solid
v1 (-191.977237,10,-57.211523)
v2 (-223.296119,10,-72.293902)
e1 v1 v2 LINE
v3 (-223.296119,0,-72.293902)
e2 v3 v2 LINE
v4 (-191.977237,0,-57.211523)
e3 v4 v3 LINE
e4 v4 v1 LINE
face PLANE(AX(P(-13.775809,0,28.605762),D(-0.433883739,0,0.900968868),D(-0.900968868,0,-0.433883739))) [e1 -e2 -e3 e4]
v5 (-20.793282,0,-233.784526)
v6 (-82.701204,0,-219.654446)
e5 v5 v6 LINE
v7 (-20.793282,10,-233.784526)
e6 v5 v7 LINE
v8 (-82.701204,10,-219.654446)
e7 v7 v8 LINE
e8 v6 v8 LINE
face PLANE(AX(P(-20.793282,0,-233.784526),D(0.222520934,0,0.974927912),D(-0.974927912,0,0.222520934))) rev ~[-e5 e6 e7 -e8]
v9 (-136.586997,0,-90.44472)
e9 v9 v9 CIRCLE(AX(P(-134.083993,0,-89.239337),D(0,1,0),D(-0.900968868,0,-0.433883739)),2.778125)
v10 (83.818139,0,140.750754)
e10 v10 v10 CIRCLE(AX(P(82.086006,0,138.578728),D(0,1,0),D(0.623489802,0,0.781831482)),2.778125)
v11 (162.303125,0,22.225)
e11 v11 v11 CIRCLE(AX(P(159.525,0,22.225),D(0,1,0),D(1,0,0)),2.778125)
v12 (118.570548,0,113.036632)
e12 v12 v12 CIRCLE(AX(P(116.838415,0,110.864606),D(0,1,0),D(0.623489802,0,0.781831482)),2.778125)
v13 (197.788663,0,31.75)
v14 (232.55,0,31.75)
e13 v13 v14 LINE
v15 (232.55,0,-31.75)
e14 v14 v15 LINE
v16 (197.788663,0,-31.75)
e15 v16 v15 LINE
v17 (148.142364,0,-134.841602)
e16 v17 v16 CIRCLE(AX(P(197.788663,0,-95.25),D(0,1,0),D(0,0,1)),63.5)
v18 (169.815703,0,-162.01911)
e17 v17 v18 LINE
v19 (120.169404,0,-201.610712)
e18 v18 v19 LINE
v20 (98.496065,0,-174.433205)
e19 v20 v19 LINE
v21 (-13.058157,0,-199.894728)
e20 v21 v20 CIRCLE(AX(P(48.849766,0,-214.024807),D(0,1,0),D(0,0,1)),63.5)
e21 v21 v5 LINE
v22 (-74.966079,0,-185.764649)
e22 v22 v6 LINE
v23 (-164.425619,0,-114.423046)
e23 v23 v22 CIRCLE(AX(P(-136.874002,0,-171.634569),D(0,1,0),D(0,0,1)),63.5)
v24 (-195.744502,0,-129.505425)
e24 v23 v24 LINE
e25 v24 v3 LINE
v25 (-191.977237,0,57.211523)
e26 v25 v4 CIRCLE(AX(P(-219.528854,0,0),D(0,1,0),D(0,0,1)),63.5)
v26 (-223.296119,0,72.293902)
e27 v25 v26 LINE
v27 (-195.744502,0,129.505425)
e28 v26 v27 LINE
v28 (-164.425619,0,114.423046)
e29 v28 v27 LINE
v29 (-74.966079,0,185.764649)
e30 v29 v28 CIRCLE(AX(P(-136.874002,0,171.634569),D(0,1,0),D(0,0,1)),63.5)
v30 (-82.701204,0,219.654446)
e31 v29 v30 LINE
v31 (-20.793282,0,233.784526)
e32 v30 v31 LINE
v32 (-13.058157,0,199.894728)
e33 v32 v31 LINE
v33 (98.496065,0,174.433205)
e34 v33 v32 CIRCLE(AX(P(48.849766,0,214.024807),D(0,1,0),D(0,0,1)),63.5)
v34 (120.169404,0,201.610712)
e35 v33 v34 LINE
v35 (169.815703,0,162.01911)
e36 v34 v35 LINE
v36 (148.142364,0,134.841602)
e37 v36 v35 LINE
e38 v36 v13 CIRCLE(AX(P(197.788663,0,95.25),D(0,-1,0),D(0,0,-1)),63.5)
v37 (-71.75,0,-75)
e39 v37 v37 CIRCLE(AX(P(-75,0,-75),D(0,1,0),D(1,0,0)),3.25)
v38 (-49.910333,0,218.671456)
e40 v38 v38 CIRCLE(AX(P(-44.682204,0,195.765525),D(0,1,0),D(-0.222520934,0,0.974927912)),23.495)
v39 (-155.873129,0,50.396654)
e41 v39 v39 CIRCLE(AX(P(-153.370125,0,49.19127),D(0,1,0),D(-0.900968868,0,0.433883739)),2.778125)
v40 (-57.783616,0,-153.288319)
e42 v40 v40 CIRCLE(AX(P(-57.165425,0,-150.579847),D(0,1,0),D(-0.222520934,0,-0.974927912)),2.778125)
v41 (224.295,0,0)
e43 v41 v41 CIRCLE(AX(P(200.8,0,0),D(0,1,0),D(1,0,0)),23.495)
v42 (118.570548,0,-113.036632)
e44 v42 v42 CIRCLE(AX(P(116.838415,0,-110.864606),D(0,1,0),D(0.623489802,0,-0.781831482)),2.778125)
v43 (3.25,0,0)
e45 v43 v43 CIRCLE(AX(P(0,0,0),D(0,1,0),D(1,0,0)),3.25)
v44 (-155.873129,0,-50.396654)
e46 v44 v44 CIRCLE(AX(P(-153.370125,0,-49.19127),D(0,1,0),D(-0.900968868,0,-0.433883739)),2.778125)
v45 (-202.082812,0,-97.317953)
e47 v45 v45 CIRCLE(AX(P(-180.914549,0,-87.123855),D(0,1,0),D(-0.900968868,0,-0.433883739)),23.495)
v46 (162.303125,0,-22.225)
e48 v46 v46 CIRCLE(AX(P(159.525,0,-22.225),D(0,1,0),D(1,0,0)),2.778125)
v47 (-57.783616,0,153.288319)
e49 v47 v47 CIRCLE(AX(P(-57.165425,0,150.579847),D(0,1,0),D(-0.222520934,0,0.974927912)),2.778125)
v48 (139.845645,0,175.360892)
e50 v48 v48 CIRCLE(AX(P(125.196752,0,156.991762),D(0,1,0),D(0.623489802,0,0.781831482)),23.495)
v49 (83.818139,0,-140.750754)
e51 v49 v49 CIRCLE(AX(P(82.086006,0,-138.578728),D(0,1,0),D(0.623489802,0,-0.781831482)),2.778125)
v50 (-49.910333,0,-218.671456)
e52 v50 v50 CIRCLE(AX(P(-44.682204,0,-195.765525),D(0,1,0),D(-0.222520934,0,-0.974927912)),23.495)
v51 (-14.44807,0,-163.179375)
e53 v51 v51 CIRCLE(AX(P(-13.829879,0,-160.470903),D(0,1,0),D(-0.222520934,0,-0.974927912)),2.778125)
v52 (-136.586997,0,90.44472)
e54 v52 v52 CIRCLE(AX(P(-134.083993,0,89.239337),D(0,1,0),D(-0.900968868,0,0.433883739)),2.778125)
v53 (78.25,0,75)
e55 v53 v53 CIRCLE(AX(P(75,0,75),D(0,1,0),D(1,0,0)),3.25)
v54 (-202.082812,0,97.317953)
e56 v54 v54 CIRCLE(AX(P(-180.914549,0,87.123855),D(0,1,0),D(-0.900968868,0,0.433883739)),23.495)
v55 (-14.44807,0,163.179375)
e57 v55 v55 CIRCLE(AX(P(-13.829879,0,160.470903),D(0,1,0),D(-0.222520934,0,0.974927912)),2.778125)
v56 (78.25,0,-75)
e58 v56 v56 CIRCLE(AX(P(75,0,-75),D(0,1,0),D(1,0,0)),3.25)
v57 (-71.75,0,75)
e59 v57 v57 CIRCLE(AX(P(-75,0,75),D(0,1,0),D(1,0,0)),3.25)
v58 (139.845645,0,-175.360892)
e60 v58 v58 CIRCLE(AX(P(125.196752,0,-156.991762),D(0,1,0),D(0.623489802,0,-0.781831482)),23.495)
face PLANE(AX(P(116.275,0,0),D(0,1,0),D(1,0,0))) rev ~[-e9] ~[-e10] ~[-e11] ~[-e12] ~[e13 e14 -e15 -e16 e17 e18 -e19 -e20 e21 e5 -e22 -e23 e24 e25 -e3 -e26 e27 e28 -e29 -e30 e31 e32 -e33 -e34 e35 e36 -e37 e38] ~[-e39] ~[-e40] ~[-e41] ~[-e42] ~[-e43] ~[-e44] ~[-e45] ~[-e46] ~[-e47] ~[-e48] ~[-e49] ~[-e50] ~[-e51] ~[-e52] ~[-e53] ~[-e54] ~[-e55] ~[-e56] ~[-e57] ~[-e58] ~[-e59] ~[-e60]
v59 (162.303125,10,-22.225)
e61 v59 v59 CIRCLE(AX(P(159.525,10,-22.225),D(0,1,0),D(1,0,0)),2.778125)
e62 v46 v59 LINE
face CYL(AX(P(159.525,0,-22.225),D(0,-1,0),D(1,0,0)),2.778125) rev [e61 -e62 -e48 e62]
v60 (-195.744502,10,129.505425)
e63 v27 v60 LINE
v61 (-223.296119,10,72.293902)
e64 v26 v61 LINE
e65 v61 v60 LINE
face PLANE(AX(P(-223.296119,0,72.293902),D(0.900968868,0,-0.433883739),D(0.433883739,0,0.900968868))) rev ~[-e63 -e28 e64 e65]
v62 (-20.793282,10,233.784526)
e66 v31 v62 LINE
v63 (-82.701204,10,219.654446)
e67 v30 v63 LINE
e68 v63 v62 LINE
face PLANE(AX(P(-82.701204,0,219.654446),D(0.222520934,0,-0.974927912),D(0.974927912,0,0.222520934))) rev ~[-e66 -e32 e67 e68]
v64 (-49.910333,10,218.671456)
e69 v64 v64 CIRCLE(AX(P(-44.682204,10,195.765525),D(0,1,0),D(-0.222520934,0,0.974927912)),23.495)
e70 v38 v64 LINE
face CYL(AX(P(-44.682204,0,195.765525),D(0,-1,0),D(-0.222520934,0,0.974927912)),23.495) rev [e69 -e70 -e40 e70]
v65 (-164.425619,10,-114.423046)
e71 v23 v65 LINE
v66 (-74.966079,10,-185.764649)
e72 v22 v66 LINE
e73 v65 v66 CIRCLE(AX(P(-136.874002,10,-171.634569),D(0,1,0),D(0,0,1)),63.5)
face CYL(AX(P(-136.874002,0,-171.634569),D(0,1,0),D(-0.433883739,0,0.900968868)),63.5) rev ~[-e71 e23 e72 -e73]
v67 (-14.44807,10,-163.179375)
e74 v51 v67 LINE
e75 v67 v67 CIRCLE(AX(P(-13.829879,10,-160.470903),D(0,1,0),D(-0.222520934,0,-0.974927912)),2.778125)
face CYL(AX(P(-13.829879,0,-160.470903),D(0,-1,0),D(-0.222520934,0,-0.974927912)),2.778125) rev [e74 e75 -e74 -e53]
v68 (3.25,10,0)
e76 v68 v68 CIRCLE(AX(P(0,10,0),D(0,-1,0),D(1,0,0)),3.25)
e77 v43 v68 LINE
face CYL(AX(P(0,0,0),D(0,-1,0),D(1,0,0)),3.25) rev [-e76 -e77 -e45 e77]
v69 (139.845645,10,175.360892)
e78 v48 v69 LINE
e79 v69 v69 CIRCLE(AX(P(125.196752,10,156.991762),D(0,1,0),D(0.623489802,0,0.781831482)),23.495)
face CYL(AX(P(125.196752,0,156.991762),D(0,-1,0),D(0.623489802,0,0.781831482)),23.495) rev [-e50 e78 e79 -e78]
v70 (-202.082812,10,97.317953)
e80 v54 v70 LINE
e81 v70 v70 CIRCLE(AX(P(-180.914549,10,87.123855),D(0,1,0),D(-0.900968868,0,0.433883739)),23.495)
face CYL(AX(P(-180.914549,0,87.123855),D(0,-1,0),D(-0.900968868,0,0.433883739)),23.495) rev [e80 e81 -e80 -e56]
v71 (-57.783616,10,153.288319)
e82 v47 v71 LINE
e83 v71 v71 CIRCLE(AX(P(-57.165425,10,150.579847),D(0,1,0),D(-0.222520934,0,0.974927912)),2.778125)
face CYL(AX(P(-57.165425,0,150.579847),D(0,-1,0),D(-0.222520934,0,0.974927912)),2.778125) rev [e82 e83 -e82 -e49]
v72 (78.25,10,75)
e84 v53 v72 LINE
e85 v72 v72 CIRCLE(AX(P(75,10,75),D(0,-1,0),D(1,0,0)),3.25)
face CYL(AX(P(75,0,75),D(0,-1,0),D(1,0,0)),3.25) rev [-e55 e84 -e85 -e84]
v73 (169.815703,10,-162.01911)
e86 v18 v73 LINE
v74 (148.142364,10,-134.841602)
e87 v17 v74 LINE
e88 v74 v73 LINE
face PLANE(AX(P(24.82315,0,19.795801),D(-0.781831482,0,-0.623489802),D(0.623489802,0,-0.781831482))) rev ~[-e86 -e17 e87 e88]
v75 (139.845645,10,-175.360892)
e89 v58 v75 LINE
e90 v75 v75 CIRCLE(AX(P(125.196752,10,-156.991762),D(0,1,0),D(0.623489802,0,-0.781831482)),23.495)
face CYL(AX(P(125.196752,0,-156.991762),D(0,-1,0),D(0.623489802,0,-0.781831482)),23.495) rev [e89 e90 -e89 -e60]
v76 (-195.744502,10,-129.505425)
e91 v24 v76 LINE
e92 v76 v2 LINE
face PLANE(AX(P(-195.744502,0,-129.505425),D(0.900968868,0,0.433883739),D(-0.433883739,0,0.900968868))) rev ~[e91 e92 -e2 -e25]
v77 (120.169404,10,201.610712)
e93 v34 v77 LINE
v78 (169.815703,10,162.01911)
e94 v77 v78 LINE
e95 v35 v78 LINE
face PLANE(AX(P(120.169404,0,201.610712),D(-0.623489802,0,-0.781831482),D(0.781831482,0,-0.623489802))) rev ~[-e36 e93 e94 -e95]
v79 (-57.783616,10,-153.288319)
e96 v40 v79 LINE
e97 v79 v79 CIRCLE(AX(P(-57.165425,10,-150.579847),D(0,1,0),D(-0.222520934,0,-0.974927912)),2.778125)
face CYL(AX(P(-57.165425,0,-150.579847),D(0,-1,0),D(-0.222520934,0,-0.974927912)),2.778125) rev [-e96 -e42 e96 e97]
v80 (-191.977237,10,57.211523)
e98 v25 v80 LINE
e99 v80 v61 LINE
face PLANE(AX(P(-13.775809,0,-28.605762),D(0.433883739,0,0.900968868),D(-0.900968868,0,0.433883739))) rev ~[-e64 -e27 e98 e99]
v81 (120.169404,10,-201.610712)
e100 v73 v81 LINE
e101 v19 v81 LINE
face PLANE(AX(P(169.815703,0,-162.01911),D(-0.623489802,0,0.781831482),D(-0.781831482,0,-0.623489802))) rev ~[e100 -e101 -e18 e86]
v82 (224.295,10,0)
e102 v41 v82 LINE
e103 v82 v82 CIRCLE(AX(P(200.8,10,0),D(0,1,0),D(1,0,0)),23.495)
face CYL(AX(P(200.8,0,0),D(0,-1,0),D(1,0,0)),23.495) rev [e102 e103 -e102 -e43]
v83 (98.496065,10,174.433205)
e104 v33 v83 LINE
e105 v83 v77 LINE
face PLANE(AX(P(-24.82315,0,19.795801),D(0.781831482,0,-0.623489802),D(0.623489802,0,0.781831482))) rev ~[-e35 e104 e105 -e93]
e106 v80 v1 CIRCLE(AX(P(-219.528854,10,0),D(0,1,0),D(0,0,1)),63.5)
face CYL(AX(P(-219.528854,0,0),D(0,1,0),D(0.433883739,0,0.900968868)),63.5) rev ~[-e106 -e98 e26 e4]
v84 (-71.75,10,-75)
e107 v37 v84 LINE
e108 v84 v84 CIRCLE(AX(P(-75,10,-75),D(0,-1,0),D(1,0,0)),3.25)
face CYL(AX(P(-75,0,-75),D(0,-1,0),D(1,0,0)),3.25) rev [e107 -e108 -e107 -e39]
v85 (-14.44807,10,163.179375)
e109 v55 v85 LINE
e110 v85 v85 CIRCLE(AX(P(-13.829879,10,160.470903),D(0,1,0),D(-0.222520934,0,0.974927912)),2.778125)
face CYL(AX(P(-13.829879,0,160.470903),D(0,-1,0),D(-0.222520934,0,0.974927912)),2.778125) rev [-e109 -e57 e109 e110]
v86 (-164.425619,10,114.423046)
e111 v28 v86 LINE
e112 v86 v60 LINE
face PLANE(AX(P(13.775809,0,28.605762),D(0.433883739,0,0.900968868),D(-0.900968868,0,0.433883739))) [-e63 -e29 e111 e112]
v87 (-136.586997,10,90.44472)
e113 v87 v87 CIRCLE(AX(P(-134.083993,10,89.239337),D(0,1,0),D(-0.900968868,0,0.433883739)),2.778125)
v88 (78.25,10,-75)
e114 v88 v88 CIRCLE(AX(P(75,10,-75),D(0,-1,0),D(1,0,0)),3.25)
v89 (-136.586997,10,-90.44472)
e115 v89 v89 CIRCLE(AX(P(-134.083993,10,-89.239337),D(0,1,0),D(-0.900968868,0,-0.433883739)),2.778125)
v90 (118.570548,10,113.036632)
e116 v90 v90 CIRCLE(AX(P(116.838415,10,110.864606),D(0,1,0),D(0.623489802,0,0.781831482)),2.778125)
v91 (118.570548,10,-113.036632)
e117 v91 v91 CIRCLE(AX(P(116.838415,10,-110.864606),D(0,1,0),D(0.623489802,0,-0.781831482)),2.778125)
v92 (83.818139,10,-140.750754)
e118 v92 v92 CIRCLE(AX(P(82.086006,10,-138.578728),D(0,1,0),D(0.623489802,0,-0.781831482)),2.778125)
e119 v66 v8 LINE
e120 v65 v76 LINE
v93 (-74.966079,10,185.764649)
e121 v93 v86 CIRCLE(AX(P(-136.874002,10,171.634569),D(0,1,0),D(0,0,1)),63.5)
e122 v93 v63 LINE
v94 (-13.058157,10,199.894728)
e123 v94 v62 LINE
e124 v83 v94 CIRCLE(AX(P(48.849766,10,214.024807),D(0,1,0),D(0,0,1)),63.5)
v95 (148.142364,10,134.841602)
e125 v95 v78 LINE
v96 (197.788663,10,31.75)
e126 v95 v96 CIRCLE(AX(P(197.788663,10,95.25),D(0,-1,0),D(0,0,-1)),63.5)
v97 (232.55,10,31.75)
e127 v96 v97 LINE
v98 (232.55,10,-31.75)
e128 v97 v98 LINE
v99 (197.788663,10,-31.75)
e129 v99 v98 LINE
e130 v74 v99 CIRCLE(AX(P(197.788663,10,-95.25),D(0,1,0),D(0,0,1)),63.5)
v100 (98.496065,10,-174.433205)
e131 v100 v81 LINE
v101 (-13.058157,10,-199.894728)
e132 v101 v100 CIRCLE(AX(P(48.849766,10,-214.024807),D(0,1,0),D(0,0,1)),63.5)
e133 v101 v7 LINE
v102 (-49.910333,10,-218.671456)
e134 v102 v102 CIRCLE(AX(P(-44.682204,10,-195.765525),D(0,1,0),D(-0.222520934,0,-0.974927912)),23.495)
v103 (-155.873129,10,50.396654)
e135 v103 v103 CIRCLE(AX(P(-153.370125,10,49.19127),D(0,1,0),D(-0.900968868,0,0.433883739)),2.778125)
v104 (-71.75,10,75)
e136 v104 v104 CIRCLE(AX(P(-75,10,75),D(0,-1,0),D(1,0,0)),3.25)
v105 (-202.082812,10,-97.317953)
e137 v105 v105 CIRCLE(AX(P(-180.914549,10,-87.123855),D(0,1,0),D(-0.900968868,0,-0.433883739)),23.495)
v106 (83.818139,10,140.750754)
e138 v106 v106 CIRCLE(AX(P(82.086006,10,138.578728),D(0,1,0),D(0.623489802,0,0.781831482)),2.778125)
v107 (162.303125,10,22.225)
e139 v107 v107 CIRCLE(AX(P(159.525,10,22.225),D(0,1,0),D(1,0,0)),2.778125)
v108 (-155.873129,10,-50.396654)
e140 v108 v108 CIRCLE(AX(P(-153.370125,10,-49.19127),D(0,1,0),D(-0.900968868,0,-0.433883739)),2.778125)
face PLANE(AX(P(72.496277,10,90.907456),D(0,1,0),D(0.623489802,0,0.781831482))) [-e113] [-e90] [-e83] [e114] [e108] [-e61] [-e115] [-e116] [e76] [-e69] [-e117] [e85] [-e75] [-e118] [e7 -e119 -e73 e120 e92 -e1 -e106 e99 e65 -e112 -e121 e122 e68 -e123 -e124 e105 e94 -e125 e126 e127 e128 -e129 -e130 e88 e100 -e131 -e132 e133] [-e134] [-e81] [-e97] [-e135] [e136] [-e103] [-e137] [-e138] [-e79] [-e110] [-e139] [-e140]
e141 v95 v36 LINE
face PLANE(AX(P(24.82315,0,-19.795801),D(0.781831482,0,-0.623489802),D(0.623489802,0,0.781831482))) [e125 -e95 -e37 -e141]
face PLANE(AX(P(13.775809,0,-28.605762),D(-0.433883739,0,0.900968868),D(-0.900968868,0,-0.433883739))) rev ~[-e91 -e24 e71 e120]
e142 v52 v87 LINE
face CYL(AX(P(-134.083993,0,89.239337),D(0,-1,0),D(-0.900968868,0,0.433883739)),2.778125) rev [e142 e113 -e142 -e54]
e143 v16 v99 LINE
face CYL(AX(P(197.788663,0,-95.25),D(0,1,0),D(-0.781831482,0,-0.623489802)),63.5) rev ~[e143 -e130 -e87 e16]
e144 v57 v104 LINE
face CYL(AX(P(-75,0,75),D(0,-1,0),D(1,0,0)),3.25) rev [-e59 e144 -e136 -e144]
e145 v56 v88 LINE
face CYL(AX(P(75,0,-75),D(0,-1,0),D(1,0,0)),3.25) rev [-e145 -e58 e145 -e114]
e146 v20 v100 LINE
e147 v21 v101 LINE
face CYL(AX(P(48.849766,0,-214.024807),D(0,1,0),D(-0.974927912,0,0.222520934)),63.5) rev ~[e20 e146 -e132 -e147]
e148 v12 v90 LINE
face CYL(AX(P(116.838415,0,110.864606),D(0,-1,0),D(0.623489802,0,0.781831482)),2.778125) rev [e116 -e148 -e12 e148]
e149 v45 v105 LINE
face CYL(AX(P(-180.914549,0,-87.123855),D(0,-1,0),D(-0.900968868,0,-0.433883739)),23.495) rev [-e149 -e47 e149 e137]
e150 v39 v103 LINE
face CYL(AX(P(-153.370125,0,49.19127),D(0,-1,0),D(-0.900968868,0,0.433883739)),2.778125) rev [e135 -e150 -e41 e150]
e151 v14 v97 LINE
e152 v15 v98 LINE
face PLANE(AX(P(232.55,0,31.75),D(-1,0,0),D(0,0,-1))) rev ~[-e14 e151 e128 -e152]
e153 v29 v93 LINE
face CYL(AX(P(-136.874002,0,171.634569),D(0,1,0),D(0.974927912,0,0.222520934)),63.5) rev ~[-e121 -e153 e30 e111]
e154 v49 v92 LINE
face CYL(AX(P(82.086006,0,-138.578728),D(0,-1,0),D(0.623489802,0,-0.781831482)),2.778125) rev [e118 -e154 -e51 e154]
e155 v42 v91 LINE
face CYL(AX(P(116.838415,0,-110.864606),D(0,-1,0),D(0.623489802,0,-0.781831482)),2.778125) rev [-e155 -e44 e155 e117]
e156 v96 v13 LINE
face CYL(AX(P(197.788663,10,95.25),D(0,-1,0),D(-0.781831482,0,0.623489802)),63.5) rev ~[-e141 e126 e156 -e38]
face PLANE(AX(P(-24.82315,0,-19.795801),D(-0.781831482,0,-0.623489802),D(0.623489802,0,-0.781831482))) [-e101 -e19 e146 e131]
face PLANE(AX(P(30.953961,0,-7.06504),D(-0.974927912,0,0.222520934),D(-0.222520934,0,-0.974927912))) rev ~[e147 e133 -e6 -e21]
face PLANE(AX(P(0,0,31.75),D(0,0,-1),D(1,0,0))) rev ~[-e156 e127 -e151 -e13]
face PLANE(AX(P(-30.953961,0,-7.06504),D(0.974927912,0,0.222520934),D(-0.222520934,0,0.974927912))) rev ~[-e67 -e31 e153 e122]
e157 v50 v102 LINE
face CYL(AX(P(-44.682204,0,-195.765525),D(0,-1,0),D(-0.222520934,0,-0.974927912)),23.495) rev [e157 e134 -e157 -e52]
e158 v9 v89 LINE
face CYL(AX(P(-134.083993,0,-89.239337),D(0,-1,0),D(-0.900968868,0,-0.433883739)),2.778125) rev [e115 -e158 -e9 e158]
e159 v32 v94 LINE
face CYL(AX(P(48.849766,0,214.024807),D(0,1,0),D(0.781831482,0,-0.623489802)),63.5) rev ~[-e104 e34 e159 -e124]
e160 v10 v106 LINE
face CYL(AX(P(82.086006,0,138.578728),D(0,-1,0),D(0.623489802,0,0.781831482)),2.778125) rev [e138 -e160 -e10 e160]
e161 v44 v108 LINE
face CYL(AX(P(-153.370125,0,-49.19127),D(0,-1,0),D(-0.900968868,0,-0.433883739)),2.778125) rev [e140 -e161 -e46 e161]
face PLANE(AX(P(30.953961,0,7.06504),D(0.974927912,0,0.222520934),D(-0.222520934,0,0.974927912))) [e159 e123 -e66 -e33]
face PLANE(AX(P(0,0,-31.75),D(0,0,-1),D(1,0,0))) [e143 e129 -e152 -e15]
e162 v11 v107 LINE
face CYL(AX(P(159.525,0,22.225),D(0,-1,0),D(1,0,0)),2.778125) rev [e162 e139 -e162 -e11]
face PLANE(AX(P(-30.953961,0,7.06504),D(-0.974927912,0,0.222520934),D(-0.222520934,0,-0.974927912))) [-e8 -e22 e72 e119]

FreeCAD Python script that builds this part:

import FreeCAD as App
import Part
import Sketcher

V = App.Vector
Q = App.Units.Quantity


def edges_at(feature, points):
    """Names of the edges that pass closest to the given points."""
    edges = feature.Shape.Edges
    near = lambda p: min(range(len(edges)), key=lambda i: edges[i].distToShape(Part.Vertex(*p))[0])
    return sorted({f"Edge{near(p) + 1}" for p in points})


def add_polygon(sketch, points):
    """Adds a closed chain of lines whose ends are joined by coincident constraints."""
    first, n = sketch.GeometryCount, len(points)
    for a, b in zip(points, points[1:] + points[:1]):
        sketch.addGeometry(Part.LineSegment(App.Vector(*a, 0), App.Vector(*b, 0)), False)
    for i in range(n):
        sketch.addConstraint(Sketcher.Constraint("Coincident", first + i, 2, first + (i + 1) % n, 1))

doc = App.newDocument("Part")
body = doc.addObject("PartDesign::Body", "Body")

# Sketch on XZ plane
sketch1 = body.newObject("Sketcher::SketchObject", "Sketch")
sketch1.AttachmentSupport = (doc.getObject("XZ_Plane"), [""])
sketch1.MapMode = "FlatFace"
add_polygon(sketch1, [(0, -31.8), (0, 31.8), (232.6, 31.8), (232.6, -31.8)])  # lines 0-3
sketch1.addGeometry(Part.Circle(V(159.5, 22.2, 0), V(0, 0, 1), 2.8), False)  # 4
sketch1.addGeometry(Part.Circle(V(159.5, -22.2, 0), V(0, 0, 1), 2.8), False)  # 5
sketch1.addGeometry(Part.Circle(V(200.8, 0, 0), V(0, 0, 1), 23.5), False)  # 6
sketch1.addConstraint(Sketcher.Constraint("Vertical", 0))
sketch1.addConstraint(Sketcher.Constraint("Horizontal", 1))
sketch1.addConstraint(Sketcher.Constraint("Vertical", 2))
sketch1.addConstraint(Sketcher.Constraint("Horizontal", 3))
sketch1.addConstraint(Sketcher.Constraint("Equal", 4, 5))
sketch1.addConstraint(Sketcher.Constraint("Symmetric", 0, 2, 3, 2, -1, 1))
sketch1.addConstraint(Sketcher.Constraint("Symmetric", 4, 3, 5, 3, -1))
sketch1.addConstraint(Sketcher.Constraint("PointOnObject", 6, 3, -1))
sketch1.addConstraint(Sketcher.Constraint("Diameter", 6, Q("46.99 mm")))
sketch1.addConstraint(Sketcher.Constraint("DistanceY", 0, 1, 0, 2, Q("63.5 mm")))
sketch1.addConstraint(Sketcher.Constraint("DistanceX", 1, 1, 1, 2, Q("232.55 mm")))
sketch1.addConstraint(Sketcher.Constraint("DistanceX", -1, 1, 6, 3, Q("200.8 mm")))
sketch1.addConstraint(Sketcher.Constraint("Diameter", 4, Q("5.55625 mm")))
sketch1.addConstraint(Sketcher.Constraint("DistanceY", 5, 3, 4, 3, Q("44.45 mm")))
sketch1.addConstraint(Sketcher.Constraint("DistanceX", -1, 1, 4, 3, Q("159.525 mm")))
pad1 = body.newObject("PartDesign::Pad", "Pad")
pad1.Profile = sketch1
pad1.Length = 10
pad1.Reversed = True
doc.recompute()

polarpattern = body.newObject("PartDesign::PolarPattern", "PolarPattern")
polarpattern.Originals = [pad1]
polarpattern.Axis = (doc.getObject("Y_Axis"), [""])
polarpattern.Angle = 360
polarpattern.Occurrences = 7
body.Tip = polarpattern
doc.recompute()

fillet = body.newObject("PartDesign::Fillet", "Fillet")
fillet.Base = (polarpattern, edges_at(polarpattern, [
    (65.93, 5, 31.75),
    (65.93, 5, -31.75),
    (16.283, 5, 71.342),
    (-45.625, 5, 57.212),
    (-73.176, 5, 0),
    (-45.625, 5, -57.212),
    (16.283, 5, -71.342),
]))
fillet.Radius = 63.5

# Sketch on XZ plane
sketch2 = body.newObject("Sketcher::SketchObject", "Sketch001")
sketch2.AttachmentSupport = (doc.getObject("XZ_Plane"), [""])
sketch2.MapMode = "FlatFace"
sketch2.addGeometry(Part.Circle(V(75, -75, 0), V(0, 0, 1), 3.2), False)
sketch2.addGeometry(Part.Circle(V(75, 75, 0), V(0, 0, 1), 3.2), False)
sketch2.addGeometry(Part.Circle(V(-75, 75, 0), V(0, 0, 1), 3.2), False)
sketch2.addGeometry(Part.Circle(V(-75, -75, 0), V(0, 0, 1), 3.2), False)
sketch2.addGeometry(Part.Circle(V(0, 0, 0), V(0, 0, 1), 3.2), False)
sketch2.addConstraint(Sketcher.Constraint("Coincident", 4, 3, -1, 1))
sketch2.addConstraint(Sketcher.Constraint("Equal", 0, 1))
sketch2.addConstraint(Sketcher.Constraint("Equal", 1, 2))
sketch2.addConstraint(Sketcher.Constraint("Equal", 2, 3))
sketch2.addConstraint(Sketcher.Constraint("Equal", 3, 4))
sketch2.addConstraint(Sketcher.Constraint("Symmetric", 0, 3, 2, 3, -1, 1))
sketch2.addConstraint(Sketcher.Constraint("Symmetric", 1, 3, 3, 3, -1, 1))
sketch2.addConstraint(Sketcher.Constraint("Symmetric", 1, 3, 2, 3, -2))
sketch2.addConstraint(Sketcher.Constraint("Diameter", 0, Q("6.5 mm")))
sketch2.addConstraint(Sketcher.Constraint("DistanceX", -1, 1, 0, 3, Q("75 mm")))
sketch2.addConstraint(Sketcher.Constraint("DistanceY", 0, 3, -1, 1, Q("75 mm")))
pocket1 = body.newObject("PartDesign::Pocket", "Pocket")
pocket1.Profile = sketch2
pocket1.Type = "ThroughAll"

doc.recompute()
